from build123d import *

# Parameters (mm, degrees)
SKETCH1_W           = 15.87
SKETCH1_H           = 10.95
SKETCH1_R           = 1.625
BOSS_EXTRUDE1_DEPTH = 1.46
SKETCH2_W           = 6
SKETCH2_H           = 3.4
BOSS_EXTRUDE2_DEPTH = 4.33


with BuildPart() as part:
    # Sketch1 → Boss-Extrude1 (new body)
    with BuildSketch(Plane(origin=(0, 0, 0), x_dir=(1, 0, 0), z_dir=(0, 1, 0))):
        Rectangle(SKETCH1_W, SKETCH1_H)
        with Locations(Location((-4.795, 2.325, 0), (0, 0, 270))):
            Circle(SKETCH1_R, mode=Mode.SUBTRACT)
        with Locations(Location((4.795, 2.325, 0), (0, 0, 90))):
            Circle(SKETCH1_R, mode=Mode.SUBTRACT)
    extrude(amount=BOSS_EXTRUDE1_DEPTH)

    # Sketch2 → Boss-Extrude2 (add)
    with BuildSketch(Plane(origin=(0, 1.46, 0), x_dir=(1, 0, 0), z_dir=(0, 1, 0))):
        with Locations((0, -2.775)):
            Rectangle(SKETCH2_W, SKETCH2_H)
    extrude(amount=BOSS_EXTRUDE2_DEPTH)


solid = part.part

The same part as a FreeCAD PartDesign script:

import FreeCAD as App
import Part
import Sketcher
from FreeCAD import Vector
Q = App.Units.Quantity


def add_polygon(sketch, points):
    """Adds a closed chain of lines whose ends are joined by coincident constraints."""
    first, n = sketch.GeometryCount, len(points)
    for a, b in zip(points, points[1:] + points[:1]):
        sketch.addGeometry(Part.LineSegment(App.Vector(*a, 0), App.Vector(*b, 0)), False)
    for i in range(n):
        sketch.addConstraint(Sketcher.Constraint("Coincident", first + i, 2, first + (i + 1) % n, 1))

doc = App.newDocument("Part")
body = doc.addObject("PartDesign::Body", "Body")

# Sketch on XZ plane
sketch1 = body.newObject("Sketcher::SketchObject", "Sketch")
sketch1.AttachmentSupport = (doc.getObject("XZ_Plane"), [""])
sketch1.MapMode = "FlatFace"
add_polygon(sketch1, [(-7.935, -5.475), (-7.935, 5.475), (7.935, 5.475), (7.935, -5.475)])  # lines 0-3
sketch1.addGeometry(Part.Circle(Vector(-4.795, -2.325, 0), Vector(0, 0, 1), 1.625), False)  # 4
sketch1.addGeometry(Part.Circle(Vector(4.795, -2.325, 0), Vector(0, 0, 1), 1.625), False)  # 5
sketch1.addConstraint([
    Sketcher.Constraint("Vertical", 0),
    Sketcher.Constraint("Horizontal", 1),
    Sketcher.Constraint("Vertical", 2),
    Sketcher.Constraint("Horizontal", 3),
    Sketcher.Constraint("Equal", 4, 5),
    Sketcher.Constraint("Symmetric", 0, 2, 2, 2, -1, 1),
    Sketcher.Constraint("Symmetric", 4, 3, 5, 3, -2),
    Sketcher.Constraint("Diameter", 4, Q("3.25 mm")),
    Sketcher.Constraint("DistanceX", 1, 1, 1, 2, Q("15.87 mm")),
    Sketcher.Constraint("DistanceY", 0, 1, 0, 2, Q("10.95 mm")),
    Sketcher.Constraint("DistanceY", 4, 3, 0, 2, Q("7.8 mm")),
    Sketcher.Constraint("DistanceX", 4, 3, 5, 3, Q("9.59 mm")),
])
pad1 = body.newObject("PartDesign::Pad", "Pad")
pad1.Profile = sketch1
pad1.Length = 1.46
pad1.Reversed = True

# Sketch on XZ plane
sketch2 = body.newObject("Sketcher::SketchObject", "Sketch001")
sketch2.AttachmentSupport = (doc.getObject("XZ_Plane"), [""])
sketch2.MapMode = "FlatFace"
sketch2.AttachmentOffset = App.Placement(Vector(0, 0, -1.46), App.Rotation())
add_polygon(sketch2, [(-3, 1.075), (-3, 4.475), (3, 4.475), (3, 1.075)])  # lines 0-3
sketch2.addConstraint([
    Sketcher.Constraint("Vertical", 0),
    Sketcher.Constraint("Horizontal", 1),
    Sketcher.Constraint("Vertical", 2),
    Sketcher.Constraint("Horizontal", 3),
    Sketcher.Constraint("DistanceX", 1, 1, 1, 2, Q("6 mm")),
    Sketcher.Constraint("DistanceY", 0, 1, 0, 2, Q("3.4 mm")),
    Sketcher.Constraint("DistanceX", 0, 2, -1, 1, Q("3 mm")),
    Sketcher.Constraint("DistanceY", -1, 1, 0, 2, Q("4.475 mm")),
])
pad2 = body.newObject("PartDesign::Pad", "Pad001")
pad2.Profile = sketch2
pad2.Length = 4.33
pad2.Reversed = True

doc.recompute()
